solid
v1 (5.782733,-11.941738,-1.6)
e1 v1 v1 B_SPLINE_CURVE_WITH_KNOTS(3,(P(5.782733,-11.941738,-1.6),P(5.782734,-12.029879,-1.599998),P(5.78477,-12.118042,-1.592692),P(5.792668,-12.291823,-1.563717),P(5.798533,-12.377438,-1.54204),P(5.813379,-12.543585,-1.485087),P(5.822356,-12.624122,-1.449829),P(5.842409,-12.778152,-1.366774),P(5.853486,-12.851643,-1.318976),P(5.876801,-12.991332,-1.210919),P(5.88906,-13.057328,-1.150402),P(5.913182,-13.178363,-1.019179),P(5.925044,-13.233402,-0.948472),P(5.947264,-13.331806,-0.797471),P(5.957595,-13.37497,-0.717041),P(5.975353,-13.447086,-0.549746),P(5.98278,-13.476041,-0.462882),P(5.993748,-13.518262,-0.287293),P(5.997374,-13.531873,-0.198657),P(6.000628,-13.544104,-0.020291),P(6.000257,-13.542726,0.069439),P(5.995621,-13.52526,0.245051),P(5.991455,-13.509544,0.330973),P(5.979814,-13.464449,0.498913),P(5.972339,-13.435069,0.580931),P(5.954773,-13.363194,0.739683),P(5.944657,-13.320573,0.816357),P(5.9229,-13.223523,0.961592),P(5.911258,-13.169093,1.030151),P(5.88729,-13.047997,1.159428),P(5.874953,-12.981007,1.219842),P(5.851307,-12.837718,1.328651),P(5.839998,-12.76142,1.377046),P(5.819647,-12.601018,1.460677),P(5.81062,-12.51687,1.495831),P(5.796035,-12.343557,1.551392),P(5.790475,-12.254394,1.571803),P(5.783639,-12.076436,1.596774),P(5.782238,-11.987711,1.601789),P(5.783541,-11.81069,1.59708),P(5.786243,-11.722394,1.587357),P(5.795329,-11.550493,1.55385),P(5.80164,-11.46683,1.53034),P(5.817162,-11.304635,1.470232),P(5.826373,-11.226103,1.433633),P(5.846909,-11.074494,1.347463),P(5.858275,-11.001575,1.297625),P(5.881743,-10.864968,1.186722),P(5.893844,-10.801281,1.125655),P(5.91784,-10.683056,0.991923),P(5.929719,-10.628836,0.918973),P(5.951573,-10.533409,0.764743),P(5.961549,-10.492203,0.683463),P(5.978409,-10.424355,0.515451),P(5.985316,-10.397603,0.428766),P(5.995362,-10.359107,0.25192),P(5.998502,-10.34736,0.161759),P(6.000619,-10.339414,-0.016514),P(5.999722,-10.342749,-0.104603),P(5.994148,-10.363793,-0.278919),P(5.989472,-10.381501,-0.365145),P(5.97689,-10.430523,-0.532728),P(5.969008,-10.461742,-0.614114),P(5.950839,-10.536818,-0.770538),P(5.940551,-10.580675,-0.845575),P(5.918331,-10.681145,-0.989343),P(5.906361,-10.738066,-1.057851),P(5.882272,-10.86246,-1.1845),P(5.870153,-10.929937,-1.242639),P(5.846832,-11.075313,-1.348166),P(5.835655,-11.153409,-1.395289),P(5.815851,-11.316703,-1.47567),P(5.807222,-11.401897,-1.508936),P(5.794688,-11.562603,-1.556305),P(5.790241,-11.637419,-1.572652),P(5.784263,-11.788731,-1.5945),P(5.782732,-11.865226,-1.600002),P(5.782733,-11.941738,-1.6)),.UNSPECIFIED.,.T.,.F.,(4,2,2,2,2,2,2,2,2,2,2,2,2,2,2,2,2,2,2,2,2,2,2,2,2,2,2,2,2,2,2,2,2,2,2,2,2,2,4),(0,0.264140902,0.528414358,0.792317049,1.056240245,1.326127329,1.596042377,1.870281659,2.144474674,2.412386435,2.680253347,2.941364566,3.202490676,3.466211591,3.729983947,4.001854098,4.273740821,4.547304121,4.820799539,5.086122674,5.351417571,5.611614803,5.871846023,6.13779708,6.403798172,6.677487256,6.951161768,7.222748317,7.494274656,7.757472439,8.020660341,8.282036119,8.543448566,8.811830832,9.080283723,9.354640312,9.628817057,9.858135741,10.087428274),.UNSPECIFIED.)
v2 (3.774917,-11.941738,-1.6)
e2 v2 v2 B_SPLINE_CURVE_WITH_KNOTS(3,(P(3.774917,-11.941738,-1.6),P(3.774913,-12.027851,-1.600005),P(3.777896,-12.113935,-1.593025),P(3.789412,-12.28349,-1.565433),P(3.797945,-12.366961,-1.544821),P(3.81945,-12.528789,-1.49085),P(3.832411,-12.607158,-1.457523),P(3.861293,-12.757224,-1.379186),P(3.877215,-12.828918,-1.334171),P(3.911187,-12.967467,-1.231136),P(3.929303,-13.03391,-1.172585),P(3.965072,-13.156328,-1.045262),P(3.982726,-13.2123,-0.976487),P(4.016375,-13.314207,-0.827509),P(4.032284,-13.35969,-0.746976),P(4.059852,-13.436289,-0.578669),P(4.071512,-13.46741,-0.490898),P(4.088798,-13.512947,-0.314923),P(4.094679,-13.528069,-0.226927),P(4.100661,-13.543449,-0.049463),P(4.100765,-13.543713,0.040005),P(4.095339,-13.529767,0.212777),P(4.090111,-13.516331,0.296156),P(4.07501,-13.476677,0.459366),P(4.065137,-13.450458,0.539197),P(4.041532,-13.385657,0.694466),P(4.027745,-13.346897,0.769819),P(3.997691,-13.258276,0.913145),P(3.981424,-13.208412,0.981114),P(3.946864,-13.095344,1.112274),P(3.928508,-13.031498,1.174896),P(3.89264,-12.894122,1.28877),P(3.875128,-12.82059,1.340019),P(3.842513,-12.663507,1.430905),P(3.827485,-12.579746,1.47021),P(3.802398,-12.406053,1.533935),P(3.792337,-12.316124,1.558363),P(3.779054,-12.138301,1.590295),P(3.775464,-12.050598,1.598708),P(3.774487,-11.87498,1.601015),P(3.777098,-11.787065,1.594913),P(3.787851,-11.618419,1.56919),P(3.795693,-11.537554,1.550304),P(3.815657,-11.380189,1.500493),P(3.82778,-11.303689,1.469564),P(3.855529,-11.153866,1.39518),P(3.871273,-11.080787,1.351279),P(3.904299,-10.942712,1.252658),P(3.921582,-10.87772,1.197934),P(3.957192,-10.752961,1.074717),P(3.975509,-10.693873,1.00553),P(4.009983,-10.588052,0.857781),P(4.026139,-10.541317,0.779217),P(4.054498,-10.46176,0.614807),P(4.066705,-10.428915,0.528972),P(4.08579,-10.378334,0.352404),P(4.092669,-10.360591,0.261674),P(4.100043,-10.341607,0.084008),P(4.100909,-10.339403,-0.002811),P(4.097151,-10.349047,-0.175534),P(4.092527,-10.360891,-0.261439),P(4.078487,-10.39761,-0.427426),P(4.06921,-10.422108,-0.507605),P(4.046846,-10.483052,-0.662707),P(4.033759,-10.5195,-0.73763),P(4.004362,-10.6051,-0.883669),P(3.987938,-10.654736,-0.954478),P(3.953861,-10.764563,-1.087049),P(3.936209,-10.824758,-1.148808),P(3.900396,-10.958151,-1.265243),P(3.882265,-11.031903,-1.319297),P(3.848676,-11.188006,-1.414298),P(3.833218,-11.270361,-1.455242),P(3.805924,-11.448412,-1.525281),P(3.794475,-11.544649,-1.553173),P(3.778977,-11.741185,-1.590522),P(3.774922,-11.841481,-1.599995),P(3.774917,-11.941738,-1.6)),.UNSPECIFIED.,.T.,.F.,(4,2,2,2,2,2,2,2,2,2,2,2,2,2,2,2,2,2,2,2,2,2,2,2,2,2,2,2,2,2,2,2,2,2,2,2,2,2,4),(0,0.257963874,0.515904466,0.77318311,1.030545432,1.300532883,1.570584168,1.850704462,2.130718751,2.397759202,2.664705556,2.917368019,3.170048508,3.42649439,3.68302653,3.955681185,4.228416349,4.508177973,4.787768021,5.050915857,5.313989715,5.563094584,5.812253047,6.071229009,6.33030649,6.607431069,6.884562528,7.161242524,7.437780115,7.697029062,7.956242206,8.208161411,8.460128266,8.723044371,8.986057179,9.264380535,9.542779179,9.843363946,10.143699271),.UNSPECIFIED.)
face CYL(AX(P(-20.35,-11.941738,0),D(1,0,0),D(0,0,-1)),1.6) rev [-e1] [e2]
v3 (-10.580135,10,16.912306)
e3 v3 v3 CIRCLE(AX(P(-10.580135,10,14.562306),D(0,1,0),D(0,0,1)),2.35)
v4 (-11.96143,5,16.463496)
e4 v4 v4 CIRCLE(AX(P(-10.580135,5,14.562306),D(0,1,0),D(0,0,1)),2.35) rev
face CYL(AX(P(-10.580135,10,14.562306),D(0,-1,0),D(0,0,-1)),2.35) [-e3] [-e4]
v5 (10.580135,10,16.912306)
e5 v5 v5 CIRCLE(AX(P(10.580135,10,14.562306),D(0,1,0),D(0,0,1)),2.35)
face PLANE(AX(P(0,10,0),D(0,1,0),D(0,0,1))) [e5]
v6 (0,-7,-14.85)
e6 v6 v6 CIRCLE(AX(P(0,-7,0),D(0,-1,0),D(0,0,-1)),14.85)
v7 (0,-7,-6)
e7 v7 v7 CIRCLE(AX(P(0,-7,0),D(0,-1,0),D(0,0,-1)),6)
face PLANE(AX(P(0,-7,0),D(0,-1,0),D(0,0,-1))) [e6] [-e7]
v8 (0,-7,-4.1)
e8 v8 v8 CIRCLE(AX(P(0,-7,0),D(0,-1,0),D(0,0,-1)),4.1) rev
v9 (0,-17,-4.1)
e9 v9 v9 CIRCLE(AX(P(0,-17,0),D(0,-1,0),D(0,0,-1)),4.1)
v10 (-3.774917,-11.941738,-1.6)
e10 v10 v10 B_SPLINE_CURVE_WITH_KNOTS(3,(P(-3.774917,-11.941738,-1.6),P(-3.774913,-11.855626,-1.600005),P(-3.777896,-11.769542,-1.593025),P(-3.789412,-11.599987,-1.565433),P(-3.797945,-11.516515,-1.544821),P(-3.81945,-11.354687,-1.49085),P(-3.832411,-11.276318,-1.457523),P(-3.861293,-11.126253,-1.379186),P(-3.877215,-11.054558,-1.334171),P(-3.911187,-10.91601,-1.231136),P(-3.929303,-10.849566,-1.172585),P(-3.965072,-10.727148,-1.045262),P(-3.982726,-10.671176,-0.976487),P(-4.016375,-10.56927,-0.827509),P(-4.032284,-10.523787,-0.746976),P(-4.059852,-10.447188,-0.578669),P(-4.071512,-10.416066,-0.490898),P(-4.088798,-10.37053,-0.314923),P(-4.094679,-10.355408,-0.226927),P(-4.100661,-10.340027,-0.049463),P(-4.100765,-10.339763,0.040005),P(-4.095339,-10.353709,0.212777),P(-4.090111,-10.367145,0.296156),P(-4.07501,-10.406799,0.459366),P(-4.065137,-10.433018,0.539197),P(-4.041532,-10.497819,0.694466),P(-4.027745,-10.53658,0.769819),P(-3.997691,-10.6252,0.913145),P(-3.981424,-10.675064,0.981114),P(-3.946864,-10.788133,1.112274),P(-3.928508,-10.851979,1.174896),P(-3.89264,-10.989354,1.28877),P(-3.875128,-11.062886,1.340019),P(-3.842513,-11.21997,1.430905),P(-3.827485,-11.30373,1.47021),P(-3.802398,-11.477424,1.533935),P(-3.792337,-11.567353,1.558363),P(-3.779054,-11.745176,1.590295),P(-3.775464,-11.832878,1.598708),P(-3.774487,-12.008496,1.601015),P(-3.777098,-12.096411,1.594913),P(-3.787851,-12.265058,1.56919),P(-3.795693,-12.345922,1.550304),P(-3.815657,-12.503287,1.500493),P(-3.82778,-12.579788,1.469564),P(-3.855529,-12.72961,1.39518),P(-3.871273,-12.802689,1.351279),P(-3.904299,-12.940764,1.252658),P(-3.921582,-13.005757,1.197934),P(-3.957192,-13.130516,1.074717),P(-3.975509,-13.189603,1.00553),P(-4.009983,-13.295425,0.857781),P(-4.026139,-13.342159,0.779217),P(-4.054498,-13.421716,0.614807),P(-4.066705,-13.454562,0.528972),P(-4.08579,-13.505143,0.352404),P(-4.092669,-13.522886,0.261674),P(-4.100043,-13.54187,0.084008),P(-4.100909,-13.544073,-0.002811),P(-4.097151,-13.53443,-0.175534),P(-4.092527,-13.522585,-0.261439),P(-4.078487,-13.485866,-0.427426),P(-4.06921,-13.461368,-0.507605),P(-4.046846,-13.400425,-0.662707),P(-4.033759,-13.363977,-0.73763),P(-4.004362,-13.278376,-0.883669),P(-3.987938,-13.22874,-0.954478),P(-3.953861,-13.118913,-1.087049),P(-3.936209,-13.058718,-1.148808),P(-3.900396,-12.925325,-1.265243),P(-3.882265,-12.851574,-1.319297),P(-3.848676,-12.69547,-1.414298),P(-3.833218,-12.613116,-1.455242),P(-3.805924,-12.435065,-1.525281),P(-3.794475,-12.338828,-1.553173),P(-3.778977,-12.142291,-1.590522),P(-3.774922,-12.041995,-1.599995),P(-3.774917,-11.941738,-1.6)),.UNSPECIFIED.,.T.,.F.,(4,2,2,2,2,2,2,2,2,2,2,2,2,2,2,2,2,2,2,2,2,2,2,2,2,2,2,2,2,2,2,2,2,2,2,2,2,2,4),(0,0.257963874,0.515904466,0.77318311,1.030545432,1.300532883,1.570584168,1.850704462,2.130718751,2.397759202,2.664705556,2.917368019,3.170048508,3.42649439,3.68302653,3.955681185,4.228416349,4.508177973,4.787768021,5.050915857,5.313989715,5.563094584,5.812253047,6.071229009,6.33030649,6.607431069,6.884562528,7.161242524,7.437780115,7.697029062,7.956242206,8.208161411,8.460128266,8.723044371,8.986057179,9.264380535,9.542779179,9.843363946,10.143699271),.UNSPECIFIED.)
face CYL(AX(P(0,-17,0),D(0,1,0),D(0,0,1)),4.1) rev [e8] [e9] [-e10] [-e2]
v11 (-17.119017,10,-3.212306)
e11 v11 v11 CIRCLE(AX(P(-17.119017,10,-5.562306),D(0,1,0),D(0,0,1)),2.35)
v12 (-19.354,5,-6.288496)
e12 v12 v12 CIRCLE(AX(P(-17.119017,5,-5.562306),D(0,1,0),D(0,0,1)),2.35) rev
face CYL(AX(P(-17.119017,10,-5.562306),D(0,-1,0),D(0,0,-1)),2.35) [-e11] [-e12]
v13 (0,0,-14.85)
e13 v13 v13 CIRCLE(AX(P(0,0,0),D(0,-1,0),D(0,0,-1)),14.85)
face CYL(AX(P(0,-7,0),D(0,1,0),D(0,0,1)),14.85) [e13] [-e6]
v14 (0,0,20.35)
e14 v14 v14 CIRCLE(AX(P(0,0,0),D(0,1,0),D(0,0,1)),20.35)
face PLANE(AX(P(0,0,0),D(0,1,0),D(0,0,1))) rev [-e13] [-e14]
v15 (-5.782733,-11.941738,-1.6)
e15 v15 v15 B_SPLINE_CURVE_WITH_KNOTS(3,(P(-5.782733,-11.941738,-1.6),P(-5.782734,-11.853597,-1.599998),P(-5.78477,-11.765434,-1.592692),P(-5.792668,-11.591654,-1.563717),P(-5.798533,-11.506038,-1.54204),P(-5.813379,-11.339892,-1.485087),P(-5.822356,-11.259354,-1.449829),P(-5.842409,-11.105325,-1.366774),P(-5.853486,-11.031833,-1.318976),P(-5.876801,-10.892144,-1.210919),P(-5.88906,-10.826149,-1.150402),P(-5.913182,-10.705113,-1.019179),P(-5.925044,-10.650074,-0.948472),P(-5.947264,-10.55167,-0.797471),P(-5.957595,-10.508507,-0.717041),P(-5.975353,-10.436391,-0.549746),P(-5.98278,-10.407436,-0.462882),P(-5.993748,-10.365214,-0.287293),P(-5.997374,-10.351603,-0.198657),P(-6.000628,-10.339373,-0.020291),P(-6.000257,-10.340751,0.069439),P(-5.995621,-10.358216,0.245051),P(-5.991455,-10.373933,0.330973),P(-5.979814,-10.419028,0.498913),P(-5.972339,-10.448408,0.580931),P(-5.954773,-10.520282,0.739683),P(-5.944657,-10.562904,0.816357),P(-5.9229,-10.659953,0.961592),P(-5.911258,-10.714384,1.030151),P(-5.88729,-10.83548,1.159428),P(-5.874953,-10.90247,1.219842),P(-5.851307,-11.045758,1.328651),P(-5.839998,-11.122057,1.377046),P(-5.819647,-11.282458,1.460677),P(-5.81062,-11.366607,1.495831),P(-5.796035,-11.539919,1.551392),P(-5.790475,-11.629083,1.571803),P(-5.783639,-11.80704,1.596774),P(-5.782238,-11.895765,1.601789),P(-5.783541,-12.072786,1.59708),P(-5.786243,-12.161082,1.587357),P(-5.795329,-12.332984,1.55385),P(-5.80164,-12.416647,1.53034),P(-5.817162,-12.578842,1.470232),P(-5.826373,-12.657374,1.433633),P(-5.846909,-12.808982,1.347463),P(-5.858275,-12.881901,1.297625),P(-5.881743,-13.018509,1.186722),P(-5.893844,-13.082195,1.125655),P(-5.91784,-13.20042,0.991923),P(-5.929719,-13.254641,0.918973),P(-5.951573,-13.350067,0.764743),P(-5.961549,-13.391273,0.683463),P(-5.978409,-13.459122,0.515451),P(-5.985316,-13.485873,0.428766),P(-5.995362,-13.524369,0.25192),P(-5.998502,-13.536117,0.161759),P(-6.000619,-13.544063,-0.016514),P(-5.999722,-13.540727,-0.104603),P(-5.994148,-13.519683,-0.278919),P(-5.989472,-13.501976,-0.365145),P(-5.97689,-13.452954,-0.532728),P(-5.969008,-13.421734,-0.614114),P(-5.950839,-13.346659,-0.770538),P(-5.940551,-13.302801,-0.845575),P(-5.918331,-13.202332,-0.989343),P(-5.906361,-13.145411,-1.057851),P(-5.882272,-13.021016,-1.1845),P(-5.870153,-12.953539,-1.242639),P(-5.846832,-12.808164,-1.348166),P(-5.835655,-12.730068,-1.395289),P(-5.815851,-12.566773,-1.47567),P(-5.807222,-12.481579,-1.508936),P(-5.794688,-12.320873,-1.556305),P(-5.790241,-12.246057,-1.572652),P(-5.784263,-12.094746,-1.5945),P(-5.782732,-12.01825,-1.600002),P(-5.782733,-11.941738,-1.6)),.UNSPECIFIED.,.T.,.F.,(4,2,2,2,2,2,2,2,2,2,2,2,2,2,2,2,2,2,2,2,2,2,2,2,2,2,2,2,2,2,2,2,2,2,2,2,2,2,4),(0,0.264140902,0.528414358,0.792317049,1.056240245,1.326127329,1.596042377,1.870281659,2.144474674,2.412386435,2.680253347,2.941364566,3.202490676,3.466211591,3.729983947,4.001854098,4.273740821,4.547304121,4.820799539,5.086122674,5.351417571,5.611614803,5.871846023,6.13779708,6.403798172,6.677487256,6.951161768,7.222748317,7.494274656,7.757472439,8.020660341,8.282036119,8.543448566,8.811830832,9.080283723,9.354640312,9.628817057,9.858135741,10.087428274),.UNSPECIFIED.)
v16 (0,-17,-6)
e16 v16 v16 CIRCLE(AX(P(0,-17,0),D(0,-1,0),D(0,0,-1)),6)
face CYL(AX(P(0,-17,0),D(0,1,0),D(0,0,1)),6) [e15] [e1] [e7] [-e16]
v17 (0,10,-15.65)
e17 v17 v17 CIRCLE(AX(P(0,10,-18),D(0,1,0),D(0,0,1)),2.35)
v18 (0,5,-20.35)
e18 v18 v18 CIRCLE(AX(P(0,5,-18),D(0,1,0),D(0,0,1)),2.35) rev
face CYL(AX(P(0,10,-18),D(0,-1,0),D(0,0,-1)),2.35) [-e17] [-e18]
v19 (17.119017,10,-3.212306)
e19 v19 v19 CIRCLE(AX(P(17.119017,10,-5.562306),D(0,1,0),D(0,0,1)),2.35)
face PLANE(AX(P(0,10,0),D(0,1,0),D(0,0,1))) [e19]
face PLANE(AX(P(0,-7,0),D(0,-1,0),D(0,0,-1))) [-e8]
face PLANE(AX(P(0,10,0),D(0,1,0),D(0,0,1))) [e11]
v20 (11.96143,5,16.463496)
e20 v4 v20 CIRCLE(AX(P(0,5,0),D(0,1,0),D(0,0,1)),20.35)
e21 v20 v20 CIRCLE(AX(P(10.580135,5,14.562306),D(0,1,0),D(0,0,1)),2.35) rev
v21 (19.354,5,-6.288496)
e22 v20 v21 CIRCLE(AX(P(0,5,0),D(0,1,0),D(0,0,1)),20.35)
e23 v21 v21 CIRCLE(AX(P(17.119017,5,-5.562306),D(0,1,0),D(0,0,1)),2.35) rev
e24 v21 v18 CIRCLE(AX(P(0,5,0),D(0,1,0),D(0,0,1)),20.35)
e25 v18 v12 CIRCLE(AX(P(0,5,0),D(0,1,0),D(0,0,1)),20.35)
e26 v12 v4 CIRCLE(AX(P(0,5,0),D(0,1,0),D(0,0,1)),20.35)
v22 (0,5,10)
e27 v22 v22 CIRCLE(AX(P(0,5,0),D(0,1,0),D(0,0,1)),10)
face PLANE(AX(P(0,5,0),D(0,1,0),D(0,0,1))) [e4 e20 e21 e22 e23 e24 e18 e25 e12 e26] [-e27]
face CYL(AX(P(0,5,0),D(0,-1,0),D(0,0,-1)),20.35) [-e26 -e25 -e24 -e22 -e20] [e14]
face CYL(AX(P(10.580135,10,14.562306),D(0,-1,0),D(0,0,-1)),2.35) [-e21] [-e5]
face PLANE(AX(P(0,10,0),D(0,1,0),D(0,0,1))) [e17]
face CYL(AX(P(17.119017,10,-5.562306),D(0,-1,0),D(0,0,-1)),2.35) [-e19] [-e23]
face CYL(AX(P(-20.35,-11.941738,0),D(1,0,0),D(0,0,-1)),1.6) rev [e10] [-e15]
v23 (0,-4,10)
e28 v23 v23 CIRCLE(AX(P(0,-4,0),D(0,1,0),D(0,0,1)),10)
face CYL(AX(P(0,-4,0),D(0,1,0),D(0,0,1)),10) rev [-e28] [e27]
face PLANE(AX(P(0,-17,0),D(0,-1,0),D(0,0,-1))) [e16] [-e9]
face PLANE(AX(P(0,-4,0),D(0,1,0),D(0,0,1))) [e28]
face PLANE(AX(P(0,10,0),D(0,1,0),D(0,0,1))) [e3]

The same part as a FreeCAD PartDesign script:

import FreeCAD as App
import Part
import Sketcher
from FreeCAD import Vector

doc = App.newDocument("Part")
params = doc.addObject("Spreadsheet::Sheet", "Params")
for row, (alias, value) in enumerate([
    ("sketch1_diameter", "40.7 mm"),
    ("pad1_length", "5 mm"),
    ("sketch2_diameter", "4.7 mm"),
    ("pad2_length", "10 mm"),
    ("sketch3_diameter", "29.7 mm"),
    ("pad3_length", "7 mm"),
    ("sketch4_diameter", "12 mm"),
    ("sketch4_diameter2", "8.2 mm"),
    ("pad4_length", "10 mm"),
    ("sketch5_diameter", "3.2 mm"),
    ("sketch6_diameter", "20 mm"),
    ("pocket2_length", "9 mm"),
], start=1):
    params.set(f"A{row}", alias)
    params.set(f"B{row}", "=" + value)
    params.setAlias(f"B{row}", alias)

body = doc.addObject("PartDesign::Body", "Body")

# Sketch on XZ plane
sketch1 = body.newObject("Sketcher::SketchObject", "Sketch")
sketch1.AttachmentSupport = (doc.getObject("XZ_Plane"), [""])
sketch1.MapMode = "FlatFace"
sketch1.addGeometry(Part.Circle(Vector(0, 0, 0), Vector(0, 0, 1), 20), False)
sketch1.addConstraint([
    Sketcher.Constraint("Coincident", 0, 3, -1, 1),
    Sketcher.Constraint("Diameter", 0, 40.7),
])
sketch1.setExpression("Constraints[1]", "Params.sketch1_diameter")
pad1 = body.newObject("PartDesign::Pad", "Pad")
pad1.Profile = sketch1
pad1.setExpression("Length", "Params.pad1_length")
pad1.Reversed = True

# Sketch on XZ plane
sketch2 = body.newObject("Sketcher::SketchObject", "Sketch001")
sketch2.AttachmentSupport = (doc.getObject("XZ_Plane"), [""])
sketch2.MapMode = "FlatFace"
sketch2.addGeometry([
    Part.Circle(Vector(0, -18, 0), Vector(0, 0, 1), 2.4),  # 0
    Part.Circle(Vector(-17.1, -5.6, 0), Vector(0, 0, 1), 2.4),  # 1
    Part.Circle(Vector(-10.6, 14.6, 0), Vector(0, 0, 1), 2.4),  # 2
    Part.Circle(Vector(10.6, 14.6, 0), Vector(0, 0, 1), 2.4),  # 3
    Part.Circle(Vector(17.1, -5.6, 0), Vector(0, 0, 1), 2.4),  # 4
], False)
sketch2.addConstraint([
    Sketcher.Constraint("Equal", 0, 1),
    Sketcher.Constraint("Equal", 1, 2),
    Sketcher.Constraint("Equal", 2, 3),
    Sketcher.Constraint("Equal", 3, 4),
    Sketcher.Constraint("Symmetric", 2, 3, 3, 3, -2),
    Sketcher.Constraint("Symmetric", 1, 3, 4, 3, -2),
    Sketcher.Constraint("PointOnObject", 0, 3, -2),
    Sketcher.Constraint("Diameter", 0, 4.7),
    Sketcher.Constraint("DistanceY", 0, 3, -1, 1, 18.0),
    Sketcher.Constraint("DistanceY", 1, 3, 2, 3, 20.124612),
    Sketcher.Constraint("DistanceX", 2, 3, 3, 3, 21.160269),
    Sketcher.Constraint("DistanceX", 1, 3, 3, 3, 27.699152),
    Sketcher.Constraint("DistanceY", 1, 3, -1, 1, 5.562306),
])
sketch2.setExpression("Constraints[7]", "Params.sketch2_diameter")
pad2 = body.newObject("PartDesign::Pad", "Pad001")
pad2.Profile = sketch2
pad2.setExpression("Length", "Params.pad2_length")
pad2.Reversed = True

# Sketch on XZ plane
sketch3 = body.newObject("Sketcher::SketchObject", "Sketch002")
sketch3.AttachmentSupport = (doc.getObject("XZ_Plane"), [""])
sketch3.MapMode = "FlatFace"
sketch3.addGeometry(Part.Circle(Vector(0, 0, 0), Vector(0, 0, 1), 15), False)
sketch3.addConstraint([
    Sketcher.Constraint("Coincident", 0, 3, -1, 1),
    Sketcher.Constraint("Diameter", 0, 29.7),
])
sketch3.setExpression("Constraints[1]", "Params.sketch3_diameter")
pad3 = body.newObject("PartDesign::Pad", "Pad002")
pad3.Profile = sketch3
pad3.setExpression("Length", "Params.pad3_length")

# Sketch on XZ plane
sketch4 = body.newObject("Sketcher::SketchObject", "Sketch003")
sketch4.AttachmentSupport = (doc.getObject("XZ_Plane"), [""])
sketch4.MapMode = "FlatFace"
sketch4.AttachmentOffset = App.Placement(Vector(0, 0, 7), App.Rotation())
sketch4.addGeometry([
    Part.Circle(Vector(0, 0, 0), Vector(0, 0, 1), 6),
    Part.Circle(Vector(0, 0, 0), Vector(0, 0, 1), 4.1),
], False)
sketch4.addConstraint([
    Sketcher.Constraint("Coincident", 0, 3, -1, 1),
    Sketcher.Constraint("Coincident", 1, 3, -1, 1),
    Sketcher.Constraint("Diameter", 0, 12.0),
    Sketcher.Constraint("Diameter", 1, 8.2),
])
sketch4.setExpression("Constraints[2]", "Params.sketch4_diameter")
sketch4.setExpression("Constraints[3]", "Params.sketch4_diameter2")
pad4 = body.newObject("PartDesign::Pad", "Pad003")
pad4.Profile = sketch4
pad4.setExpression("Length", "Params.pad4_length")

# Sketch on YZ plane
sketch5 = body.newObject("Sketcher::SketchObject", "Sketch004")
sketch5.AttachmentSupport = (doc.getObject("YZ_Plane"), [""])
sketch5.MapMode = "FlatFace"
sketch5.addGeometry(Part.Circle(Vector(-11.9, 0, 0), Vector(0, 0, 1), 1.6), False)
sketch5.addConstraint([
    Sketcher.Constraint("PointOnObject", 0, 3, -1),
    Sketcher.Constraint("Diameter", 0, 3.2),
    Sketcher.Constraint("DistanceX", 0, 3, -1, 1, 11.941738),
])
sketch5.setExpression("Constraints[1]", "Params.sketch5_diameter")
pocket1 = body.newObject("PartDesign::Pocket", "Pocket")
pocket1.Profile = sketch5
pocket1.Type = "ThroughAll"
pocket1.Midplane = True

# Sketch on XZ plane
sketch6 = body.newObject("Sketcher::SketchObject", "Sketch005")
sketch6.AttachmentSupport = (doc.getObject("XZ_Plane"), [""])
sketch6.MapMode = "FlatFace"
sketch6.AttachmentOffset = App.Placement(Vector(0, 0, -5), App.Rotation())
sketch6.addGeometry(Part.Circle(Vector(0, 0, 0), Vector(0, 0, 1), 10), False)
sketch6.addConstraint([
    Sketcher.Constraint("Coincident", 0, 3, -1, 1),
    Sketcher.Constraint("Diameter", 0, 20.0),
])
sketch6.setExpression("Constraints[1]", "Params.sketch6_diameter")
pocket2 = body.newObject("PartDesign::Pocket", "Pocket001")
pocket2.Profile = sketch6
pocket2.setExpression("Length", "Params.pocket2_length")
pocket2.Reversed = True

doc.recompute()
